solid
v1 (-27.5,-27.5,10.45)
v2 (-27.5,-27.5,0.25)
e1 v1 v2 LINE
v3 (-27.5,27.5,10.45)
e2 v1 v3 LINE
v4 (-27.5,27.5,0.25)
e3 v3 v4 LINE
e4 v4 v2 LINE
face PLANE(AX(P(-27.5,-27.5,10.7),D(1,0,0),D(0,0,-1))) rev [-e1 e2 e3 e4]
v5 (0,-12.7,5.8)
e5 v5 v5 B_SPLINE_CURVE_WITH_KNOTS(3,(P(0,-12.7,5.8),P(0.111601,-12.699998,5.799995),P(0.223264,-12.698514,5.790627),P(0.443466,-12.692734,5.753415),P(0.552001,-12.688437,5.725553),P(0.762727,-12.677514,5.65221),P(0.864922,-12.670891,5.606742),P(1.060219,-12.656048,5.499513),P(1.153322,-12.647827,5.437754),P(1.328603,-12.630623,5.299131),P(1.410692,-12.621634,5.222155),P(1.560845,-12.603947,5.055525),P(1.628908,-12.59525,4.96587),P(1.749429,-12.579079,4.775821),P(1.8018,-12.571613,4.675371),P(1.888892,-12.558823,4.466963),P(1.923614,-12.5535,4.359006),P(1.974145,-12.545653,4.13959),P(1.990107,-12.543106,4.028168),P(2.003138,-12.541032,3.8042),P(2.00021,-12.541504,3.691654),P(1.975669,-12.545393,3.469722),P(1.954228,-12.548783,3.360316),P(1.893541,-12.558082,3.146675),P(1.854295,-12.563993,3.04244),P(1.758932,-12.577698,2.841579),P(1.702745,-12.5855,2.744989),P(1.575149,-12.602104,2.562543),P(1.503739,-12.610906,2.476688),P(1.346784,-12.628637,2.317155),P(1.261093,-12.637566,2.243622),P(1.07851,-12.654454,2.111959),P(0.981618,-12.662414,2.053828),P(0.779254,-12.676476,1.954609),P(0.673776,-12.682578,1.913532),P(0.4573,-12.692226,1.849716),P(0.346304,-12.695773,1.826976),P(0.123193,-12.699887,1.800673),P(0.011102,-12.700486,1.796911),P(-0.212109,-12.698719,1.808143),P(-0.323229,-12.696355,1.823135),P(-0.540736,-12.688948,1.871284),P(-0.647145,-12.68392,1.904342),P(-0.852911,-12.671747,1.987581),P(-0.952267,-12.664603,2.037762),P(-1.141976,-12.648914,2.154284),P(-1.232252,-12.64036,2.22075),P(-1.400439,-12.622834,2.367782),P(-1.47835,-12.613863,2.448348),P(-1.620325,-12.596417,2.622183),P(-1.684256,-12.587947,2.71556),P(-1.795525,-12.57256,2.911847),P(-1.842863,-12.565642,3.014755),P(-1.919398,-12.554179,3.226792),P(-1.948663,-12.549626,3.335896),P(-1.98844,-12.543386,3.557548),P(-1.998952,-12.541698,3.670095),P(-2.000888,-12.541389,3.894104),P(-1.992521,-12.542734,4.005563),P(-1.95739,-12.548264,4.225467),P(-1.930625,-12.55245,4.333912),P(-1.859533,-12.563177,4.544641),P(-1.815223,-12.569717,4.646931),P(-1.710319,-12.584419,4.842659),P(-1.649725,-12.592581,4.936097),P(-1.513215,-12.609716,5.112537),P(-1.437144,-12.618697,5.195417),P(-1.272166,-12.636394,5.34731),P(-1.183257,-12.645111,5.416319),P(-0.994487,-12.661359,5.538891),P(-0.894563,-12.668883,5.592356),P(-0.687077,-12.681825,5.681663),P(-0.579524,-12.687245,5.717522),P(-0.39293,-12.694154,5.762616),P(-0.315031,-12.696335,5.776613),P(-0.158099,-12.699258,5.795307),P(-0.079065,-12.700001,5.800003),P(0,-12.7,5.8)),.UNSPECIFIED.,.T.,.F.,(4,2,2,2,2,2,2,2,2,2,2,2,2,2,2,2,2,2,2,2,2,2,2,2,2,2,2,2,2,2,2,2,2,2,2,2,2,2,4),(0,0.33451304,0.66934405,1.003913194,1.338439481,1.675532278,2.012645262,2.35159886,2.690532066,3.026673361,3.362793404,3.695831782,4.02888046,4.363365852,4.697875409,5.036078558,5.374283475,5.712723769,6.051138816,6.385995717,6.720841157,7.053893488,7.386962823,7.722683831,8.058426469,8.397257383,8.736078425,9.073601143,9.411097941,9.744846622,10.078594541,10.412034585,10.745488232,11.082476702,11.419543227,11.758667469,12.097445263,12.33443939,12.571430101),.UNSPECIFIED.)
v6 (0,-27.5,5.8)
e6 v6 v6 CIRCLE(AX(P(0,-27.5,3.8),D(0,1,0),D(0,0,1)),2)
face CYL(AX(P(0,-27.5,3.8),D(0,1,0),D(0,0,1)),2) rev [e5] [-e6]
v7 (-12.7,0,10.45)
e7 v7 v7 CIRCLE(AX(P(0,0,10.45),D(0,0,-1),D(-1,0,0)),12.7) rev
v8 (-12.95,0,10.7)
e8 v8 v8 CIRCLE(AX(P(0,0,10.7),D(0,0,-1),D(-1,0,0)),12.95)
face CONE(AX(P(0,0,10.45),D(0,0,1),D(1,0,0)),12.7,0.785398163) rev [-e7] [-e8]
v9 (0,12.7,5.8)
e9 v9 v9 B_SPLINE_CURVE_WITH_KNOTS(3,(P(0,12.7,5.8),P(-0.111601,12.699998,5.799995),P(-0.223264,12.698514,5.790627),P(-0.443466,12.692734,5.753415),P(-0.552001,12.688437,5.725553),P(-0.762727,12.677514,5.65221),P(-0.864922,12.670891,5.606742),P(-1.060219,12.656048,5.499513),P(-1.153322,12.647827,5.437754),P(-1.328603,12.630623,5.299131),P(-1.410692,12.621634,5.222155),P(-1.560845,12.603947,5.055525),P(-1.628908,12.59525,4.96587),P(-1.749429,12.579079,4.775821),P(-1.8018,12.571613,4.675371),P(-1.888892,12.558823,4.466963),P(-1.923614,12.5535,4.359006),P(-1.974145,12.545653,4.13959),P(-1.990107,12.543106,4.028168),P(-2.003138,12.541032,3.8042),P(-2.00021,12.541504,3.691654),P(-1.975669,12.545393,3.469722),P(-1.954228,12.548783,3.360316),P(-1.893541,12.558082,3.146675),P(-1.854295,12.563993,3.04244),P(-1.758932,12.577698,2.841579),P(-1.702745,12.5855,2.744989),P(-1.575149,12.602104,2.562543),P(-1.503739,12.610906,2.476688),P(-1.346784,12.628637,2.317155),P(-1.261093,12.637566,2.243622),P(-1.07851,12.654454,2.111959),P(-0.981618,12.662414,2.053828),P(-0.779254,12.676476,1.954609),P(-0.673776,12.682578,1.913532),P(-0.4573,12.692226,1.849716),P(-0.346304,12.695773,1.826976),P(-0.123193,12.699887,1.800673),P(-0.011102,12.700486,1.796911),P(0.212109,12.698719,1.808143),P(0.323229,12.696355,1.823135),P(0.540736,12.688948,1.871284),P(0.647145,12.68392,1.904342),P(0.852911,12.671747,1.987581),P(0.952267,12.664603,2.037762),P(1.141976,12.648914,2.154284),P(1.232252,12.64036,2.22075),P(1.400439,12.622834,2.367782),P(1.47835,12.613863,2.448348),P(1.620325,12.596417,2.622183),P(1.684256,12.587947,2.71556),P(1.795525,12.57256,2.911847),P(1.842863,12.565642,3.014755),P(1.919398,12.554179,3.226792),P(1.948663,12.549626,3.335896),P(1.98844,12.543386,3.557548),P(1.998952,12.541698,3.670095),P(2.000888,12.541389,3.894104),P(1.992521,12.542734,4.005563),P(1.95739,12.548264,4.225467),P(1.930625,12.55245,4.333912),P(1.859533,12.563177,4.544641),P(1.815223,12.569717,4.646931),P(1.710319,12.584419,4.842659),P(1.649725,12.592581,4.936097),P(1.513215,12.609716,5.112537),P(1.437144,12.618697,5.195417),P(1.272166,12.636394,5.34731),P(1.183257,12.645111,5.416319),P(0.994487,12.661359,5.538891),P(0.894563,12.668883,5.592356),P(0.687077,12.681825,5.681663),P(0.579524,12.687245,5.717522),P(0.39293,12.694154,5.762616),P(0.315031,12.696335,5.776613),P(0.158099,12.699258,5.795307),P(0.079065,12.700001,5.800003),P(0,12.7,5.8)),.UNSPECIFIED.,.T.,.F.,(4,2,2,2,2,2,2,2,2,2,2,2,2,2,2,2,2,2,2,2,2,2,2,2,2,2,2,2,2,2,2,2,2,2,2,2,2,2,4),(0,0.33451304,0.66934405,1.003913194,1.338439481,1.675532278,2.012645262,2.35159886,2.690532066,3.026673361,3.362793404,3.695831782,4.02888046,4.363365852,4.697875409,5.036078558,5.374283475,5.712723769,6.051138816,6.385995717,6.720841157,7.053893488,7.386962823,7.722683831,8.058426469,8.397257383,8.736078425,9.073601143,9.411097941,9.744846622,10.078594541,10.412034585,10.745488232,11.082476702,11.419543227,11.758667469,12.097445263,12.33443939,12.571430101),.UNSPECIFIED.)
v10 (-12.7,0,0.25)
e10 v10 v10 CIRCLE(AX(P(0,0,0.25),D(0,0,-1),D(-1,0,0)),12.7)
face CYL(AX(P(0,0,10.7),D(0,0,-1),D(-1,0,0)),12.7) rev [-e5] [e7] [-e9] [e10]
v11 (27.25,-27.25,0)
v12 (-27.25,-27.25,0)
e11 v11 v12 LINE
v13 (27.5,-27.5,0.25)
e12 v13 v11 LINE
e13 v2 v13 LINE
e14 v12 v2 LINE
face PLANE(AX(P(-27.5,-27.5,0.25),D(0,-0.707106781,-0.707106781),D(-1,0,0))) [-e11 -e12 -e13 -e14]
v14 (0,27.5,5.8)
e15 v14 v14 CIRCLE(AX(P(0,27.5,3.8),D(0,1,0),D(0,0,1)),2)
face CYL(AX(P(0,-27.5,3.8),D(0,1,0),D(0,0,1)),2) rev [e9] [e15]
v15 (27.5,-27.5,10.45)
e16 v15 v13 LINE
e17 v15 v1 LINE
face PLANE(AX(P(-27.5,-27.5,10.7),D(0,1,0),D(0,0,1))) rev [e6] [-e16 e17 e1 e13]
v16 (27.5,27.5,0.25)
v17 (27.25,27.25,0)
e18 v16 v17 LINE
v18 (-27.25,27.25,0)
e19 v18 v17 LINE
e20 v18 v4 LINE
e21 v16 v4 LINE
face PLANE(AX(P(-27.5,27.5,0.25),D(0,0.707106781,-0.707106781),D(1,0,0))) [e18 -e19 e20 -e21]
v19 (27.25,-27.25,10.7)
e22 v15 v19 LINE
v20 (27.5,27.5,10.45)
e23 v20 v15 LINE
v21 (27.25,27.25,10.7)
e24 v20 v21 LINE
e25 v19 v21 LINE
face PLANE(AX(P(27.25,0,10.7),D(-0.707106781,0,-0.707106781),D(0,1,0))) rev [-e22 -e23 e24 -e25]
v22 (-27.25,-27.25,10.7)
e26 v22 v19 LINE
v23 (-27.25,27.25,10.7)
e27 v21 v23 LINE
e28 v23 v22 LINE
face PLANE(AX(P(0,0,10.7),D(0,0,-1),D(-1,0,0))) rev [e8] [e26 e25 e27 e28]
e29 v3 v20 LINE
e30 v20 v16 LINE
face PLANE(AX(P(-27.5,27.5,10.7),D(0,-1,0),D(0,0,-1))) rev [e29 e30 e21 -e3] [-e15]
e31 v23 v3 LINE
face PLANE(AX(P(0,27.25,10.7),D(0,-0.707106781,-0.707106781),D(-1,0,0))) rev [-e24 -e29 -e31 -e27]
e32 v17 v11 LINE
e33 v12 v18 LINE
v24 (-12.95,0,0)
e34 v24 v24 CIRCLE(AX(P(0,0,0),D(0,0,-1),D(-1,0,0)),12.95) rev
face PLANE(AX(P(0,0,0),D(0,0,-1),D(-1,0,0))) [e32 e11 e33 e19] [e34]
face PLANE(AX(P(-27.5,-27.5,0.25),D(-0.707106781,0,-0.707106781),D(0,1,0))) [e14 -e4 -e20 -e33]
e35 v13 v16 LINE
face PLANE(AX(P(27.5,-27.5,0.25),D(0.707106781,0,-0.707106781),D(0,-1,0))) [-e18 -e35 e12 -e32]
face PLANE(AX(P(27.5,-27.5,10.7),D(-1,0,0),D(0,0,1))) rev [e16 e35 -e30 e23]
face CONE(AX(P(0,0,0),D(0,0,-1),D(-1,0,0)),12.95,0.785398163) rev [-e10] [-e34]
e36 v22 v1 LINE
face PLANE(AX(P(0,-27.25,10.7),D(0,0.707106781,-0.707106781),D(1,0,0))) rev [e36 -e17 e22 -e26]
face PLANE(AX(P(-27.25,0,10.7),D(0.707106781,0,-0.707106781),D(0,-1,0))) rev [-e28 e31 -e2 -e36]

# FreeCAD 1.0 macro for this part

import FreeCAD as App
import Part
import Sketcher
from FreeCAD import Vector


def edges_at(feature, points):
    """Names of the edges that pass closest to the given points."""
    edges = feature.Shape.Edges
    near = lambda p: min(range(len(edges)), key=lambda i: edges[i].distToShape(Part.Vertex(*p))[0])
    return sorted({f"Edge{near(p) + 1}" for p in points})


def add_polygon(sketch, points):
    """Adds a closed chain of lines whose ends are joined by coincident constraints."""
    first, n = sketch.GeometryCount, len(points)
    for a, b in zip(points, points[1:] + points[:1]):
        sketch.addGeometry(Part.LineSegment(App.Vector(*a, 0), App.Vector(*b, 0)), False)
    for i in range(n):
        sketch.addConstraint(Sketcher.Constraint("Coincident", first + i, 2, first + (i + 1) % n, 1))

doc = App.newDocument("Part")
body = doc.addObject("PartDesign::Body", "Body")

# Sketch on XY plane
sketch1 = body.newObject("Sketcher::SketchObject", "Sketch")
sketch1.AttachmentSupport = (doc.getObject("XY_Plane"), [""])
sketch1.MapMode = "FlatFace"
add_polygon(sketch1, [(-28, 28), (-28, -28), (28, -28), (28, 28)])  # lines 0-3
sketch1.addGeometry(Part.Circle(Vector(0, 0, 0), Vector(0, 0, 1), 13), False)  # 4
sketch1.addConstraint([
    Sketcher.Constraint("Vertical", 0),
    Sketcher.Constraint("Horizontal", 1),
    Sketcher.Constraint("Vertical", 2),
    Sketcher.Constraint("Horizontal", 3),
    Sketcher.Constraint("Coincident", 4, 3, -1, 1),
    Sketcher.Constraint("Symmetric", 0, 2, 2, 2, -1, 1),
    Sketcher.Constraint("Equal", 3, 0),
    Sketcher.Constraint("Diameter", 4, 25.4),
    Sketcher.Constraint("DistanceX", 1, 1, 1, 2, 55.0),
])
pad1 = body.newObject("PartDesign::Pad", "Pad")
pad1.Profile = sketch1
pad1.Length = 10.7

# Sketch on XZ plane
sketch2 = body.newObject("Sketcher::SketchObject", "Sketch001")
sketch2.AttachmentSupport = (doc.getObject("XZ_Plane"), [""])
sketch2.MapMode = "FlatFace"
sketch2.addGeometry(Part.Circle(Vector(0, 3.8, 0), Vector(0, 0, 1), 2), False)
sketch2.addConstraint([
    Sketcher.Constraint("PointOnObject", 0, 3, -2),
    Sketcher.Constraint("Diameter", 0, 4.0),
    Sketcher.Constraint("DistanceY", -1, 1, 0, 3, 3.8),
])
pocket1 = body.newObject("PartDesign::Pocket", "Pocket")
pocket1.Profile = sketch2
pocket1.Type = "ThroughAll"
pocket1.Midplane = True
doc.recompute()

chamfer = body.newObject("PartDesign::Chamfer", "Chamfer")
chamfer.Base = (pocket1, edges_at(pocket1, [
    (-12.7, 0, 0),
    (-12.7, 0, 10.7),
    (-27.5, 0, 10.7),
    (0, -27.5, 10.7),
    (27.5, 0, 10.7),
    (0, -27.5, 0),
    (-27.5, 0, 0),
    (0, 27.5, 0),
    (27.5, 0, 0),
    (0, 27.5, 10.7),
]))
chamfer.Size = 0.25

doc.recompute()
